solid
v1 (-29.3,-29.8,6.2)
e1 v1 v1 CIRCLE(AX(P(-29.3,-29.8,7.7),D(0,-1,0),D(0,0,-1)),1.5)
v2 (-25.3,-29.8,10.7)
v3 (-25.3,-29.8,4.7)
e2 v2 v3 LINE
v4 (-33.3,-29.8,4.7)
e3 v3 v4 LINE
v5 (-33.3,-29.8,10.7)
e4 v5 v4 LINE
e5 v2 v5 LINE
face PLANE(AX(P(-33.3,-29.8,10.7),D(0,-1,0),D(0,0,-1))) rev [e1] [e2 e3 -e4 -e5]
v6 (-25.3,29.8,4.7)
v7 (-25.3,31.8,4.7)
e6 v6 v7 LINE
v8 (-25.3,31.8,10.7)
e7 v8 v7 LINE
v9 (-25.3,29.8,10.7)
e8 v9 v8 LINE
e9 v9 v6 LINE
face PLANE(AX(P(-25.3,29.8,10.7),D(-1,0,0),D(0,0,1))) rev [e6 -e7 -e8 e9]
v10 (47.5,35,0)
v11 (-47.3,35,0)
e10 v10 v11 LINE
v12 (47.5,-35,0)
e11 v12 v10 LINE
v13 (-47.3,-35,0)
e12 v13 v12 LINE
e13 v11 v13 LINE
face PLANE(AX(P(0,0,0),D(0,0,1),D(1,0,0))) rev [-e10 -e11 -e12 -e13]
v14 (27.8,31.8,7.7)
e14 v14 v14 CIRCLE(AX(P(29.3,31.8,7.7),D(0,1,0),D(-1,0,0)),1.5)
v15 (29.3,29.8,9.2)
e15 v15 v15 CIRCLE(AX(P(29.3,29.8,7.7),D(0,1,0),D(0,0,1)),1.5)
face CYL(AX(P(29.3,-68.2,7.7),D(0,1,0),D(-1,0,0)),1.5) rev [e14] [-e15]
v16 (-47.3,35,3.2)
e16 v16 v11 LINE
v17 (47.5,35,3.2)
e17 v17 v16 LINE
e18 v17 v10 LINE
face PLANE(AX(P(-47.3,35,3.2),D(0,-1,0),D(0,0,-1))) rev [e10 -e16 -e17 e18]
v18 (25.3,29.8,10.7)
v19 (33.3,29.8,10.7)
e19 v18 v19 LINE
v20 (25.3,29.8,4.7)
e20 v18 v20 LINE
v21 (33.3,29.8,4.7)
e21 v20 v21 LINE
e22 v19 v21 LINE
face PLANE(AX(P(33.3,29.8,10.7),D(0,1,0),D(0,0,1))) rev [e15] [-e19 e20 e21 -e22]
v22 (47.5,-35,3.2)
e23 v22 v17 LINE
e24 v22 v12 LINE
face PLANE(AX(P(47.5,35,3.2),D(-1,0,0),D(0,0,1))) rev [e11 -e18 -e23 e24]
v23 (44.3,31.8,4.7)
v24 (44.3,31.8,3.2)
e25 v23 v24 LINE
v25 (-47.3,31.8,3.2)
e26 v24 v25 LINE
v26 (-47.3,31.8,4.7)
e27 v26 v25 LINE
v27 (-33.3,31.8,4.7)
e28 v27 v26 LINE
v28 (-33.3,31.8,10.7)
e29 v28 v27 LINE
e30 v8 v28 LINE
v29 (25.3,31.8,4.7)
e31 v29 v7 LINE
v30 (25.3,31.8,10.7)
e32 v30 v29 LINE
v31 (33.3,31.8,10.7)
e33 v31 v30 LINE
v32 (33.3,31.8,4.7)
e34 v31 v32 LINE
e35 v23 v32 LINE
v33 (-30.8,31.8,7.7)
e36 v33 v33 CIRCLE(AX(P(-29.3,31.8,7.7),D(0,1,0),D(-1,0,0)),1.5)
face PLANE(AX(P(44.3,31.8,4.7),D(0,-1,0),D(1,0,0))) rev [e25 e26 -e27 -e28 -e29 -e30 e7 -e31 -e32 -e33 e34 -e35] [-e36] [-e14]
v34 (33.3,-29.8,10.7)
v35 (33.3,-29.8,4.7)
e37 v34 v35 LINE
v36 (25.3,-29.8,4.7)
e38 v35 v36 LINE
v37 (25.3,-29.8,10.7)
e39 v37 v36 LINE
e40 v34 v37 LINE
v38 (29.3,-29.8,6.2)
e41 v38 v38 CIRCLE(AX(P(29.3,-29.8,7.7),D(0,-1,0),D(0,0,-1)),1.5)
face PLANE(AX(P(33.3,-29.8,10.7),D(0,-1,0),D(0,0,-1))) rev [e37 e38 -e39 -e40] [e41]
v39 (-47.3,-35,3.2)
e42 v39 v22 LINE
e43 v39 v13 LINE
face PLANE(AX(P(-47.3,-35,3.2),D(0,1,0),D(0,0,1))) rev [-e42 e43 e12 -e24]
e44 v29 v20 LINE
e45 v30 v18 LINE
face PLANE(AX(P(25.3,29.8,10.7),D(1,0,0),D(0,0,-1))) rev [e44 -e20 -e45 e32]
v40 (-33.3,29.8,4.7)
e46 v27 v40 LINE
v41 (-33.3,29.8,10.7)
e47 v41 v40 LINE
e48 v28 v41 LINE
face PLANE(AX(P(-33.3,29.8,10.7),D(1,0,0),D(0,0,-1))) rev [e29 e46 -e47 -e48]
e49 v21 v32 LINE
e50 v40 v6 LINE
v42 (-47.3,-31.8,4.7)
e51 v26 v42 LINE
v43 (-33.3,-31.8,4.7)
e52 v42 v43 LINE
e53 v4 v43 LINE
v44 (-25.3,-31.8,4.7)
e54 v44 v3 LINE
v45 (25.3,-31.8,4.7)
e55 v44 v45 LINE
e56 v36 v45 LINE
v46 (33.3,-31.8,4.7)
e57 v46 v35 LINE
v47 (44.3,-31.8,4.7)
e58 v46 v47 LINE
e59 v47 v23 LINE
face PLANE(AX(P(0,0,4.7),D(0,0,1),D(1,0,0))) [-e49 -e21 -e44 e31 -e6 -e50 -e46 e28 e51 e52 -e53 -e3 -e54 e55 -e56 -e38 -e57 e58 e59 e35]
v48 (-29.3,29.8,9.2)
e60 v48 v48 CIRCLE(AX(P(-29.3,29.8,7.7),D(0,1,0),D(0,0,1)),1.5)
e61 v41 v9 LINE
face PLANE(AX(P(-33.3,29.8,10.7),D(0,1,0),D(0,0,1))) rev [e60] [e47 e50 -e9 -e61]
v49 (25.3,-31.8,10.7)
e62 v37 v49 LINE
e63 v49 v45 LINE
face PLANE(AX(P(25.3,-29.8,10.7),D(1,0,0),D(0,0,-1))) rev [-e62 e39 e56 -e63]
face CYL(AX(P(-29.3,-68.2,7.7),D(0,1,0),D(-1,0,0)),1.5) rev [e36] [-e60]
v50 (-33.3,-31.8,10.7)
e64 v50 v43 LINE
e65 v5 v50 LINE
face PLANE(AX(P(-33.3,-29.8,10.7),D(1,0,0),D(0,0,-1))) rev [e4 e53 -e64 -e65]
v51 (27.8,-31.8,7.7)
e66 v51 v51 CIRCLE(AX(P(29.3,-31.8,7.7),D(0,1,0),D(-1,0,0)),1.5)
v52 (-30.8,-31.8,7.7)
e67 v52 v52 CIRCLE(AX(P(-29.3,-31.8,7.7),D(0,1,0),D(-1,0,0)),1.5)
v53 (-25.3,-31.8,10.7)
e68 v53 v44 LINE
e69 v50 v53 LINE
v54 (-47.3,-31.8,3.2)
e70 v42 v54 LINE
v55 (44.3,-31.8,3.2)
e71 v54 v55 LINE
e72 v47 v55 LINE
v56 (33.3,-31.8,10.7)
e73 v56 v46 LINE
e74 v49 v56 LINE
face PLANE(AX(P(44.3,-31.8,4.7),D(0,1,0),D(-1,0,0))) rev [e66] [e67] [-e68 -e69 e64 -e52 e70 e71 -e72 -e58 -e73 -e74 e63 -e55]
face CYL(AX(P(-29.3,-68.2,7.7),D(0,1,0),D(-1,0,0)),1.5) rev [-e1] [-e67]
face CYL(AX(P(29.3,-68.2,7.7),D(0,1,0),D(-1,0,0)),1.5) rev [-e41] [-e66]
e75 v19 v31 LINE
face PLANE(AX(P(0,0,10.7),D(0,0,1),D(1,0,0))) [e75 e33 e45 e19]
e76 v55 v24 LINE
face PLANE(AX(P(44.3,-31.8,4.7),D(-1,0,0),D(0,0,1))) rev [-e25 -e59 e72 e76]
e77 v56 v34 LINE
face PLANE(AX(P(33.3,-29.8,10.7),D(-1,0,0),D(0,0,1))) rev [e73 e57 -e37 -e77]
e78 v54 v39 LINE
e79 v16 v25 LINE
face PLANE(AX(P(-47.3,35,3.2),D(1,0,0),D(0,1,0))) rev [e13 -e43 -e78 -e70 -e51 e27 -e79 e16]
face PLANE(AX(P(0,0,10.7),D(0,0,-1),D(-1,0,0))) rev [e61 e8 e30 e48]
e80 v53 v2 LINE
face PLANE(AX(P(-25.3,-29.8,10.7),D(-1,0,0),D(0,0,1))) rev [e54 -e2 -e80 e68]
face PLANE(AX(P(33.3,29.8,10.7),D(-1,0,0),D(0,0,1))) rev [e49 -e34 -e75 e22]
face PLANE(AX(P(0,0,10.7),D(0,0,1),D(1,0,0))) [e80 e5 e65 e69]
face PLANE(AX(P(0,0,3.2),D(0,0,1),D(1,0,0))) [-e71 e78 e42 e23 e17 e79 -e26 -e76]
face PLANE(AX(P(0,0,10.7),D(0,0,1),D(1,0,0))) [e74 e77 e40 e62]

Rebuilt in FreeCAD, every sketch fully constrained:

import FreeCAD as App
import Part
import Sketcher
from FreeCAD import Vector
Q = App.Units.Quantity


def add_polygon(sketch, points):
    """Adds a closed chain of lines whose ends are joined by coincident constraints."""
    first, n = sketch.GeometryCount, len(points)
    for a, b in zip(points, points[1:] + points[:1]):
        sketch.addGeometry(Part.LineSegment(App.Vector(*a, 0), App.Vector(*b, 0)), False)
    for i in range(n):
        sketch.addConstraint(Sketcher.Constraint("Coincident", first + i, 2, first + (i + 1) % n, 1))

doc = App.newDocument("Part")
body = doc.addObject("PartDesign::Body", "Body")

sketch1 = body.newObject("Sketcher::SketchObject", "Sketch")
sketch1.AttachmentSupport = (doc.getObject("XY_Plane"), [""])
sketch1.MapMode = "FlatFace"
add_polygon(sketch1, [(-47.3, 35), (-47.3, -35), (47.5, -35), (47.5, 35)])
sketch1.addConstraint([
    Sketcher.Constraint("Vertical", 0),
    Sketcher.Constraint("Horizontal", 1),
    Sketcher.Constraint("Vertical", 2),
    Sketcher.Constraint("Horizontal", 3),
    Sketcher.Constraint("DistanceY", 0, 2, 0, 1, Q("70 mm")),
    Sketcher.Constraint("DistanceX", 1, 1, 1, 2, Q("94.8 mm")),
    Sketcher.Constraint("DistanceY", 0, 2, -1, 1, Q("35 mm")),
    Sketcher.Constraint("DistanceX", 0, 2, -1, 1, Q("47.3 mm")),
])
pad1 = body.newObject("PartDesign::Pad", "Pad")
pad1.Profile = sketch1
pad1.Length = 3.2

sketch2 = body.newObject("Sketcher::SketchObject", "Sketch001")
sketch2.AttachmentSupport = (doc.getObject("XY_Plane"), [""])
sketch2.MapMode = "FlatFace"
sketch2.AttachmentOffset = App.Placement(Vector(0, 0, 3.2), App.Rotation())
add_polygon(sketch2, [(-44.3, 31.8), (-44.3, -31.8), (44.3, -31.8), (44.3, 31.8)])
sketch2.addConstraint([
    Sketcher.Constraint("Vertical", 0),
    Sketcher.Constraint("Horizontal", 1),
    Sketcher.Constraint("Vertical", 2),
    Sketcher.Constraint("Horizontal", 3),
    Sketcher.Constraint("Symmetric", 0, 2, 2, 2, -1, 1),
    Sketcher.Constraint("DistanceX", 1, 1, 1, 2, Q("88.6 mm")),
    Sketcher.Constraint("DistanceY", 0, 2, 0, 1, Q("63.6 mm")),
])
pad2 = body.newObject("PartDesign::Pad", "Pad001")
pad2.Profile = sketch2
pad2.Length = 1.5

sketch3 = body.newObject("Sketcher::SketchObject", "Sketch002")
sketch3.AttachmentSupport = (doc.getObject("XY_Plane"), [""])
sketch3.MapMode = "FlatFace"
sketch3.AttachmentOffset = App.Placement(Vector(0, 0, 4.7), App.Rotation())
add_polygon(sketch3, [(25.3, 31.8), (25.3, 29.8), (33.3, 29.8), (33.3, 31.8)])
add_polygon(sketch3, [(25.3, -29.8), (25.3, -31.8), (33.3, -31.8), (33.3, -29.8)])
add_polygon(sketch3, [(-33.3, -29.8), (-33.3, -31.8), (-25.3, -31.8), (-25.3, -29.8)])
add_polygon(sketch3, [(-33.3, 31.8), (-33.3, 29.8), (-25.3, 29.8), (-25.3, 31.8)])
sketch3.addConstraint([
    Sketcher.Constraint("Vertical", 0),
    Sketcher.Constraint("Horizontal", 1),
    Sketcher.Constraint("Vertical", 2),
    Sketcher.Constraint("Horizontal", 3),
    Sketcher.Constraint("Vertical", 4),
    Sketcher.Constraint("Horizontal", 5),
    Sketcher.Constraint("Vertical", 6),
    Sketcher.Constraint("Horizontal", 7),
    Sketcher.Constraint("Vertical", 8),
    Sketcher.Constraint("Horizontal", 9),
    Sketcher.Constraint("Vertical", 10),
    Sketcher.Constraint("Horizontal", 11),
    Sketcher.Constraint("Vertical", 12),
    Sketcher.Constraint("Horizontal", 13),
    Sketcher.Constraint("Vertical", 14),
    Sketcher.Constraint("Horizontal", 15),
    Sketcher.Constraint("Symmetric", 2, 2, 8, 2, -1, 1),
    Sketcher.Constraint("Symmetric", 0, 2, 10, 2, -1, 1),
    Sketcher.Constraint("Symmetric", 6, 2, 12, 2, -1, 1),
    Sketcher.Constraint("Symmetric", 4, 2, 14, 2, -1, 1),
    Sketcher.Constraint("Symmetric", 5, 2, 8, 2, -2),
    Sketcher.Constraint("Symmetric", 7, 2, 10, 2, -2),
    Sketcher.Constraint("DistanceX", 1, 1, 1, 2, Q("8 mm")),
    Sketcher.Constraint("DistanceY", 0, 2, 0, 1, Q("2 mm")),
    Sketcher.Constraint("DistanceX", -1, 1, 0, 2, Q("25.3 mm")),
    Sketcher.Constraint("DistanceY", -1, 1, 0, 2, Q("29.8 mm")),
])
pad3 = body.newObject("PartDesign::Pad", "Pad002")
pad3.Profile = sketch3
pad3.Length = 6

sketch4 = body.newObject("Sketcher::SketchObject", "Sketch003")
sketch4.AttachmentSupport = (doc.getObject("XZ_Plane"), [""])
sketch4.MapMode = "FlatFace"
sketch4.AttachmentOffset = App.Placement(Vector(0, 0, -31.8), App.Rotation())
sketch4.addGeometry([
    Part.Circle(Vector(29.3, 7.7, 0), Vector(0, 0, 1), 1.5),
    Part.Circle(Vector(-29.3, 7.7, 0), Vector(0, 0, 1), 1.5),
], False)
sketch4.addConstraint([
    Sketcher.Constraint("Equal", 0, 1),
    Sketcher.Constraint("Symmetric", 0, 3, 1, 3, -2),
    Sketcher.Constraint("Diameter", 0, Q("3 mm")),
    Sketcher.Constraint("DistanceX", -1, 1, 0, 3, Q("29.3 mm")),
    Sketcher.Constraint("DistanceY", -1, 1, 0, 3, Q("7.7 mm")),
])
pocket1 = body.newObject("PartDesign::Pocket", "Pocket")
pocket1.Profile = sketch4
pocket1.Length = 100
pocket1.Reversed = True

sketch5 = body.newObject("Sketcher::SketchObject", "Sketch004")
sketch5.AttachmentSupport = (doc.getObject("XY_Plane"), [""])
sketch5.MapMode = "FlatFace"
sketch5.AttachmentOffset = App.Placement(Vector(0, 0, 3.2), App.Rotation())
add_polygon(sketch5, [(-47.3, 31.8), (-47.3, -31.8), (-44.3, -31.8), (-44.3, 31.8)])
sketch5.addConstraint([
    Sketcher.Constraint("Vertical", 0),
    Sketcher.Constraint("Horizontal", 1),
    Sketcher.Constraint("Vertical", 2),
    Sketcher.Constraint("Horizontal", 3),
    Sketcher.Constraint("DistanceX", 1, 1, 1, 2, Q("3 mm")),
    Sketcher.Constraint("DistanceY", 0, 2, 0, 1, Q("63.6 mm")),
    Sketcher.Constraint("DistanceX", 0, 2, -1, 1, Q("47.3 mm")),
    Sketcher.Constraint("DistanceY", 0, 2, -1, 1, Q("31.8 mm")),
])
pad4 = body.newObject("PartDesign::Pad", "Pad003")
pad4.Profile = sketch5
pad4.Length = 1.5

doc.recompute()
